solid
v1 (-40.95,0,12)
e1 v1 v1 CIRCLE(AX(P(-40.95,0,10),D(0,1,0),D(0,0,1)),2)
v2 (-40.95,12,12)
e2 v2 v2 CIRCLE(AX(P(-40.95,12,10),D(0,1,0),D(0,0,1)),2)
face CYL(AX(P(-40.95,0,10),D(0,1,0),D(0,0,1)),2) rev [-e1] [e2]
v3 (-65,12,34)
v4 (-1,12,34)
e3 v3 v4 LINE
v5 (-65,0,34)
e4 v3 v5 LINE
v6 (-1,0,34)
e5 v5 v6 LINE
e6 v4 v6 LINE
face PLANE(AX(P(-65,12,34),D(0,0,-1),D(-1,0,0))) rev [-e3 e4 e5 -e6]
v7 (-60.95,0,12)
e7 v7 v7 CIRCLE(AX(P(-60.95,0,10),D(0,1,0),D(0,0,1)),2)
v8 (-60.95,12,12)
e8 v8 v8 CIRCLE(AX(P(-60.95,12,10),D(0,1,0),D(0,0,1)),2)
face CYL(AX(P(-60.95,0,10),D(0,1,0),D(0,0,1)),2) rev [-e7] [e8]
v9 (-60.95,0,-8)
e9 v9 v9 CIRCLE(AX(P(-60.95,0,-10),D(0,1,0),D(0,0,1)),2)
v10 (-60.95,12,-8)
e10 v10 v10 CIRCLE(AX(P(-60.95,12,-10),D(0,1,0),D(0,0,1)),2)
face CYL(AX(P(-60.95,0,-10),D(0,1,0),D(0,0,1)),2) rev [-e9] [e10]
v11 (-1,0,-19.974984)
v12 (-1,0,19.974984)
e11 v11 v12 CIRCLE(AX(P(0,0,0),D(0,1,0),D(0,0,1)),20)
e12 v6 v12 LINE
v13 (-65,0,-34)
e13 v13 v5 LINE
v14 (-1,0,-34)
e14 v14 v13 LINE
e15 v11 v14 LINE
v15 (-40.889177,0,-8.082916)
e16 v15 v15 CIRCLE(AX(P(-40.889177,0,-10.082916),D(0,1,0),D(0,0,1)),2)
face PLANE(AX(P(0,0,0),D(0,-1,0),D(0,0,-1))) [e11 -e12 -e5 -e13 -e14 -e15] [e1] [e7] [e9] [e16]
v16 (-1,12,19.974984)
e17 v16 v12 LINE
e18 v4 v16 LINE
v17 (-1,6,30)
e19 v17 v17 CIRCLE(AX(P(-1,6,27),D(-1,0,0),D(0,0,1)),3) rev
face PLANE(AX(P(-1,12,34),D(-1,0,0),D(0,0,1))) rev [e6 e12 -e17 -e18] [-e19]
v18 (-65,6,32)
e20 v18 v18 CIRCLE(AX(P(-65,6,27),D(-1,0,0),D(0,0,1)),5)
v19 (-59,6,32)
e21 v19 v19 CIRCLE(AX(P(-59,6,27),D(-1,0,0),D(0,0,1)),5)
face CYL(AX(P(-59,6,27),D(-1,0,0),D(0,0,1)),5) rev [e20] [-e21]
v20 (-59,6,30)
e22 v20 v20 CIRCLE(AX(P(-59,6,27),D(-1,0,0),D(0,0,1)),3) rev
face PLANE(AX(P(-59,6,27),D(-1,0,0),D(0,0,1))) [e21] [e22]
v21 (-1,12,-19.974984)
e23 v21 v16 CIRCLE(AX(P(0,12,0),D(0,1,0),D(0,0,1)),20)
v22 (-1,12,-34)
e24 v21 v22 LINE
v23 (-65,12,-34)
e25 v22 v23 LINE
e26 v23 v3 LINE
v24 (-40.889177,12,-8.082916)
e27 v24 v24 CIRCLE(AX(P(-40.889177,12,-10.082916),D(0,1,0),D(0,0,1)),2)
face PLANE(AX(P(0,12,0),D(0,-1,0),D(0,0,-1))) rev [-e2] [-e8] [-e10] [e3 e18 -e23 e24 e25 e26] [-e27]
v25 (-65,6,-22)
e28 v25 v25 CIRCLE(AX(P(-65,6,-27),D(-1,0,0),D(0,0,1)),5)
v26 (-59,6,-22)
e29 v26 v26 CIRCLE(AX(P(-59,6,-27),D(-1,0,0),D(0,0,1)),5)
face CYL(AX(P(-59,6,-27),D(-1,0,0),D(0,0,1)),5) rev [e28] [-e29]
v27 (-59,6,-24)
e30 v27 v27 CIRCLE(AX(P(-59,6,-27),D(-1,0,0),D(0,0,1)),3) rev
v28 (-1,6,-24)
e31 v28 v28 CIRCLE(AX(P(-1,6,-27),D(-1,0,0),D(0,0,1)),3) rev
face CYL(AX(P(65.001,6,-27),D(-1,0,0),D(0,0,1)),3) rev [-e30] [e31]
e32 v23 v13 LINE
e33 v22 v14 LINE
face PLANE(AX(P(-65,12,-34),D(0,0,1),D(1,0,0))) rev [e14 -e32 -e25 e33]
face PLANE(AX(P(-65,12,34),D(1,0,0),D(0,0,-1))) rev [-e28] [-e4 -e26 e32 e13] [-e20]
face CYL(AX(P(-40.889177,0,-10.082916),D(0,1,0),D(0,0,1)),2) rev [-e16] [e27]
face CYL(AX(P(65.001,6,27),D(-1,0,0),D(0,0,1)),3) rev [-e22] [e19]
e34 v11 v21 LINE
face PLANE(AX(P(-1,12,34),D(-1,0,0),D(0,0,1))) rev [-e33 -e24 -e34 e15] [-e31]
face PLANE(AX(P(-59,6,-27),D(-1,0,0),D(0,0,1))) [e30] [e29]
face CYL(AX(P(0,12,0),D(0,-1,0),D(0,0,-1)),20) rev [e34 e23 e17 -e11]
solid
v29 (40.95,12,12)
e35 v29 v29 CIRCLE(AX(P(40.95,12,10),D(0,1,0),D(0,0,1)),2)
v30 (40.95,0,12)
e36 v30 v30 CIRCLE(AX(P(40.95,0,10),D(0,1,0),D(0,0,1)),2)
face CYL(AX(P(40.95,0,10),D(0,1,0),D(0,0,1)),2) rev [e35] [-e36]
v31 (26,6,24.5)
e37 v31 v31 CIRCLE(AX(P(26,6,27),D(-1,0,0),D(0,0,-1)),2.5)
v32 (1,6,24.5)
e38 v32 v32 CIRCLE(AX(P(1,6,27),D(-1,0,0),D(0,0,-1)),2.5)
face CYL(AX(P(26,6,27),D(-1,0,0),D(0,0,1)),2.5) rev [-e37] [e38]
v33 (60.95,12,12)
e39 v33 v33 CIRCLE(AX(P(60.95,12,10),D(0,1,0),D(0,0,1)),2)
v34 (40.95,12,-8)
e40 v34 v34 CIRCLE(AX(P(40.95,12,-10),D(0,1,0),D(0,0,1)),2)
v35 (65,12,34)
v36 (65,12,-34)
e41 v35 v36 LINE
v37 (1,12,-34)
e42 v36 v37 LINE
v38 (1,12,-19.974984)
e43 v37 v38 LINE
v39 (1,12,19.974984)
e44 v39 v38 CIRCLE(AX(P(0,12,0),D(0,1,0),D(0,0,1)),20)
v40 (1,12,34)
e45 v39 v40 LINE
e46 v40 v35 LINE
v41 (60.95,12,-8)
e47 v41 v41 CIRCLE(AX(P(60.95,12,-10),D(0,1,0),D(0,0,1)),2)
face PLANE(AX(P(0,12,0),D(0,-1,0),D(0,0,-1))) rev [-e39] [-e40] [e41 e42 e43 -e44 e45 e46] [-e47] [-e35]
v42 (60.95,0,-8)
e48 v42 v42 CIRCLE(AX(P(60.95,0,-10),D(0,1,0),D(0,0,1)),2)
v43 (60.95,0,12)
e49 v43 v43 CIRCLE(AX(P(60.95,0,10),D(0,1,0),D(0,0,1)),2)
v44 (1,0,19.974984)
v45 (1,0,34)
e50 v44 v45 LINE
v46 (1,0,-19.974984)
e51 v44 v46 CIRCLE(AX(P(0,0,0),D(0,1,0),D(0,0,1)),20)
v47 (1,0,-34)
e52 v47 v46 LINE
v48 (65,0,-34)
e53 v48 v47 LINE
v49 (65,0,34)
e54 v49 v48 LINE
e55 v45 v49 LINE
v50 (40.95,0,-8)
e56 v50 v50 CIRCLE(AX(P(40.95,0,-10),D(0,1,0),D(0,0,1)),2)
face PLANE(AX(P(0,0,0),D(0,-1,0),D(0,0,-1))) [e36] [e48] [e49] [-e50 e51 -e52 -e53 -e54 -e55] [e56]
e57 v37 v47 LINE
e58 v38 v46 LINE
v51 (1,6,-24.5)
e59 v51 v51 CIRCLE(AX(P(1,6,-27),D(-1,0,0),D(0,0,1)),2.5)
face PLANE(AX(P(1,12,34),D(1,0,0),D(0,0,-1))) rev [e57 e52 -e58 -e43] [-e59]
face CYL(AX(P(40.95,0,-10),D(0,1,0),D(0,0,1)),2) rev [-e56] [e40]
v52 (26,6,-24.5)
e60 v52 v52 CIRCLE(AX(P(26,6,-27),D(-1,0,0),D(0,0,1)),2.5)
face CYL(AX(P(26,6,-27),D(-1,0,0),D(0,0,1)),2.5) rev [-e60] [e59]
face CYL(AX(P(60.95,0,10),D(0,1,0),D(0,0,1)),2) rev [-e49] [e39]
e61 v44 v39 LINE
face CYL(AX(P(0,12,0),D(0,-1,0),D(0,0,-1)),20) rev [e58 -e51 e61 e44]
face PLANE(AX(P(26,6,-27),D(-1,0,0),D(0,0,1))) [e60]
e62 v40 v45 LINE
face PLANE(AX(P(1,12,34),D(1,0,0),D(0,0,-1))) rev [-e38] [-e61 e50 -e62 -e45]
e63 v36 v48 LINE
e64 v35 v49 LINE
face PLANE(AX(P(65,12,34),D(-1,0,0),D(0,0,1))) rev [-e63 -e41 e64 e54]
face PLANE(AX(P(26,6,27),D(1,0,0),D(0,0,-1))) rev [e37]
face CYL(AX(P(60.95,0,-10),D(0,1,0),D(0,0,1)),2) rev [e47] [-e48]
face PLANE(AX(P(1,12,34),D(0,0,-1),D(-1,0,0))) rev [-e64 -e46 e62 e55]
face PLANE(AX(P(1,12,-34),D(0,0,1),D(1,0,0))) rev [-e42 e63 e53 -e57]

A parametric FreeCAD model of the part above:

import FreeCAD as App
import Part
import Sketcher


def add_polygon(sketch, points):
    """Adds a closed chain of lines whose ends are joined by coincident constraints."""
    first, n = sketch.GeometryCount, len(points)
    for a, b in zip(points, points[1:] + points[:1]):
        sketch.addGeometry(Part.LineSegment(App.Vector(*a, 0), App.Vector(*b, 0)), False)
    for i in range(n):
        sketch.addConstraint(Sketcher.Constraint("Coincident", first + i, 2, first + (i + 1) % n, 1))

doc = App.newDocument("Part")
params = doc.addObject("Spreadsheet::Sheet", "Params")
for row, (alias, value) in enumerate([
    ("sketch1_width", "64 mm"),
    ("sketch1_height", "68 mm"),
    ("pad1_length", "12 mm"),
    ("sketch2_width", "64 mm"),
    ("sketch2_height", "68 mm"),
    ("pad2_length", "12 mm"),
    ("sketch3_diameter", "40 mm"),
    ("pad3_length", "75.330344 mm"),
    ("sketch4_diameter", "4 mm"),
    ("sketch5_diameter", "5 mm"),
    ("pocket2_length", "25 mm"),
    ("sketch6_diameter", "4 mm"),
    ("sketch7_diameter", "6 mm"),
    ("pocket4_length", "64 mm"),
    ("sketch8_diameter", "10 mm"),
    ("pocket5_length", "6 mm"),
], start=1):
    params.set(f"A{row}", alias)
    params.set(f"B{row}", "=" + value)
    params.setAlias(f"B{row}", alias)

body = doc.addObject("PartDesign::Body", "Body")

# Sketch on XZ plane
sketch1 = doc.addObject("Sketcher::SketchObject", "Sketch")
body.addObject(sketch1)
sketch1.AttachmentSupport = (doc.XZ_Plane, [""])
sketch1.MapMode = "FlatFace"
add_polygon(sketch1, [(1, -34), (1, 34), (65, 34), (65, -34)])  # lines 0-3
sketch1.addConstraint(Sketcher.Constraint("Vertical", 0))
sketch1.addConstraint(Sketcher.Constraint("Horizontal", 1))
sketch1.addConstraint(Sketcher.Constraint("Vertical", 2))
sketch1.addConstraint(Sketcher.Constraint("Horizontal", 3))
sketch1.addConstraint(Sketcher.Constraint("DistanceX", 1, 1, 1, 2, 64.0))
sketch1.addConstraint(Sketcher.Constraint("DistanceY", 0, 1, 0, 2, 68.0))
sketch1.addConstraint(Sketcher.Constraint("DistanceX", -1, 1, 0, 2, 1.0))
sketch1.addConstraint(Sketcher.Constraint("DistanceY", -1, 1, 0, 2, 34.0))
sketch1.setExpression("Constraints[8]", "Params.sketch1_width")
sketch1.setExpression("Constraints[9]", "Params.sketch1_height")
pad1 = doc.addObject("PartDesign::Pad", "Pad")
body.addObject(pad1)
pad1.Profile = sketch1
pad1.setExpression("Length", "Params.pad1_length")
pad1.Reversed = True
body2 = doc.addObject("PartDesign::Body", "Body001")

# Sketch on XZ plane
sketch2 = doc.addObject("Sketcher::SketchObject", "Sketch001")
body2.addObject(sketch2)
sketch2.AttachmentSupport = (doc.getObject("XZ_Plane001"), [""])
sketch2.MapMode = "FlatFace"
add_polygon(sketch2, [(-65, -34), (-65, 34), (-1, 34), (-1, -34)])  # lines 0-3
sketch2.addConstraint(Sketcher.Constraint("Vertical", 0))
sketch2.addConstraint(Sketcher.Constraint("Horizontal", 1))
sketch2.addConstraint(Sketcher.Constraint("Vertical", 2))
sketch2.addConstraint(Sketcher.Constraint("Horizontal", 3))
sketch2.addConstraint(Sketcher.Constraint("DistanceX", 1, 1, 1, 2, 64.0))
sketch2.addConstraint(Sketcher.Constraint("DistanceY", 0, 1, 0, 2, 68.0))
sketch2.addConstraint(Sketcher.Constraint("DistanceX", 0, 2, -1, 1, 65.0))
sketch2.addConstraint(Sketcher.Constraint("DistanceY", -1, 1, 0, 2, 34.0))
sketch2.setExpression("Constraints[8]", "Params.sketch2_width")
sketch2.setExpression("Constraints[9]", "Params.sketch2_height")
pad2 = doc.addObject("PartDesign::Pad", "Pad001")
body2.addObject(pad2)
pad2.Profile = sketch2
pad2.setExpression("Length", "Params.pad2_length")
pad2.Reversed = True
body3 = doc.addObject("PartDesign::Body", "Body002")

# Sketch on XZ plane
sketch3 = doc.addObject("Sketcher::SketchObject", "Sketch002")
body3.addObject(sketch3)
sketch3.AttachmentSupport = (doc.getObject("XZ_Plane002"), [""])
sketch3.MapMode = "FlatFace"
sketch3.addGeometry(Part.Circle(App.Vector(0, 0, 0), App.Vector(0, 0, 1), 20), False)
sketch3.addConstraint(Sketcher.Constraint("Coincident", 0, 3, -1, 1))
sketch3.addConstraint(Sketcher.Constraint("Diameter", 0, 40.0))
sketch3.setExpression("Constraints[1]", "Params.sketch3_diameter")
pad3 = doc.addObject("PartDesign::Pad", "Pad002")
body3.addObject(pad3)
pad3.Profile = sketch3
pad3.setExpression("Length", "Params.pad3_length")
pad3.Reversed = True
doc.recompute()

body4 = doc.addObject("PartDesign::Body", "Body003")
body4.BaseFeature = body3
boolean = doc.addObject("PartDesign::Boolean", "Boolean")
body.addObject(boolean)
boolean.Type = "Cut"
boolean.addObjects([body4])
doc.recompute()

# Sketch on XZ plane
sketch4 = doc.addObject("Sketcher::SketchObject", "Sketch003")
body.addObject(sketch4)
sketch4.AttachmentSupport = (doc.XZ_Plane, [""])
sketch4.MapMode = "FlatFace"
sketch4.AttachmentOffset = App.Placement(App.Vector(0, 0, -12), App.Rotation())
sketch4.addGeometry(Part.Circle(App.Vector(41, -10, 0), App.Vector(0, 0, 1), 2), False)
sketch4.addGeometry(Part.Circle(App.Vector(61, -10, 0), App.Vector(0, 0, 1), 2), False)
sketch4.addGeometry(Part.Circle(App.Vector(61, 10, 0), App.Vector(0, 0, 1), 2), False)
sketch4.addGeometry(Part.Circle(App.Vector(41, 10, 0), App.Vector(0, 0, 1), 2), False)
sketch4.addConstraint(Sketcher.Constraint("Equal", 0, 1))
sketch4.addConstraint(Sketcher.Constraint("Equal", 1, 2))
sketch4.addConstraint(Sketcher.Constraint("Equal", 2, 3))
sketch4.addConstraint(Sketcher.Constraint("Symmetric", 1, 3, 2, 3, -1))
sketch4.addConstraint(Sketcher.Constraint("Symmetric", 0, 3, 3, 3, -1))
sketch4.addConstraint(Sketcher.Constraint("Horizontal", 0, 3, 1, 3))
sketch4.addConstraint(Sketcher.Constraint("Diameter", 0, 4.0))
sketch4.addConstraint(Sketcher.Constraint("DistanceY", 0, 3, -1, 1, 10.0))
sketch4.addConstraint(Sketcher.Constraint("DistanceX", 0, 3, 1, 3, 20.0))
sketch4.addConstraint(Sketcher.Constraint("DistanceX", -1, 1, 0, 3, 40.95))
sketch4.setExpression("Constraints[6]", "Params.sketch4_diameter")
pocket1 = doc.addObject("PartDesign::Pocket", "Pocket")
body.addObject(pocket1)
pocket1.Profile = sketch4
pocket1.Type = "ThroughAll"
pocket1.Reversed = True

# Sketch on YZ plane
sketch5 = doc.addObject("Sketcher::SketchObject", "Sketch004")
body.addObject(sketch5)
sketch5.AttachmentSupport = (doc.YZ_Plane, [""])
sketch5.MapMode = "FlatFace"
sketch5.AttachmentOffset = App.Placement(App.Vector(0, 0, 1), App.Rotation())
sketch5.addGeometry(Part.Circle(App.Vector(6, -27, 0), App.Vector(0, 0, 1), 2.5), False)
sketch5.addGeometry(Part.Circle(App.Vector(6, 27, 0), App.Vector(0, 0, 1), 2.5), False)
sketch5.addConstraint(Sketcher.Constraint("Equal", 0, 1))
sketch5.addConstraint(Sketcher.Constraint("Symmetric", 0, 3, 1, 3, -1))
sketch5.addConstraint(Sketcher.Constraint("Diameter", 0, 5.0))
sketch5.addConstraint(Sketcher.Constraint("DistanceX", -1, 1, 0, 3, 6.0))
sketch5.addConstraint(Sketcher.Constraint("DistanceY", 0, 3, -1, 1, 27.0))
sketch5.setExpression("Constraints[2]", "Params.sketch5_diameter")
pocket2 = doc.addObject("PartDesign::Pocket", "Pocket001")
body.addObject(pocket2)
pocket2.Profile = sketch5
pocket2.setExpression("Length", "Params.pocket2_length")
pocket2.Reversed = True
doc.recompute()

boolean2 = doc.addObject("PartDesign::Boolean", "Boolean001")
body2.addObject(boolean2)
boolean2.Type = "Cut"
boolean2.addObjects([body3])

# Sketch on XZ plane
sketch6 = doc.addObject("Sketcher::SketchObject", "Sketch005")
body2.addObject(sketch6)
sketch6.AttachmentSupport = (doc.getObject("XZ_Plane001"), [""])
sketch6.MapMode = "FlatFace"
sketch6.AttachmentOffset = App.Placement(App.Vector(0, 0, -12), App.Rotation())
sketch6.addGeometry(Part.Circle(App.Vector(-61, -10, 0), App.Vector(0, 0, 1), 2), False)
sketch6.addGeometry(Part.Circle(App.Vector(-40.9, -10.1, 0), App.Vector(0, 0, 1), 2), False)
sketch6.addGeometry(Part.Circle(App.Vector(-41, 10, 0), App.Vector(0, 0, 1), 2), False)
sketch6.addGeometry(Part.Circle(App.Vector(-61, 10, 0), App.Vector(0, 0, 1), 2), False)
sketch6.addConstraint(Sketcher.Constraint("Equal", 0, 1))
sketch6.addConstraint(Sketcher.Constraint("Equal", 1, 2))
sketch6.addConstraint(Sketcher.Constraint("Equal", 2, 3))
sketch6.addConstraint(Sketcher.Constraint("Symmetric", 0, 3, 3, 3, -1))
sketch6.addConstraint(Sketcher.Constraint("Horizontal", 2, 3, 3, 3))
sketch6.addConstraint(Sketcher.Constraint("Diameter", 0, 4.0))
sketch6.addConstraint(Sketcher.Constraint("DistanceY", 0, 3, -1, 1, 10.0))
sketch6.addConstraint(Sketcher.Constraint("DistanceX", 0, 3, 2, 3, 20.0))
sketch6.addConstraint(Sketcher.Constraint("DistanceX", 0, 3, -1, 1, 60.95))
sketch6.addConstraint(Sketcher.Constraint("DistanceX", 1, 3, -1, 1, 40.889177))
sketch6.addConstraint(Sketcher.Constraint("DistanceY", 1, 3, -1, 1, 10.082916))
sketch6.setExpression("Constraints[5]", "Params.sketch6_diameter")
pocket3 = doc.addObject("PartDesign::Pocket", "Pocket002")
body2.addObject(pocket3)
pocket3.Profile = sketch6
pocket3.Type = "ThroughAll"
pocket3.Reversed = True

# Sketch on YZ plane
sketch7 = doc.addObject("Sketcher::SketchObject", "Sketch006")
body2.addObject(sketch7)
sketch7.AttachmentSupport = (doc.getObject("YZ_Plane001"), [""])
sketch7.MapMode = "FlatFace"
sketch7.AttachmentOffset = App.Placement(App.Vector(0, 0, -65), App.Rotation())
sketch7.addGeometry(Part.Circle(App.Vector(6, -27, 0), App.Vector(0, 0, 1), 3), False)
sketch7.addGeometry(Part.Circle(App.Vector(6, 27, 0), App.Vector(0, 0, 1), 3), False)
sketch7.addConstraint(Sketcher.Constraint("Equal", 0, 1))
sketch7.addConstraint(Sketcher.Constraint("Symmetric", 0, 3, 1, 3, -1))
sketch7.addConstraint(Sketcher.Constraint("Diameter", 0, 6.0))
sketch7.addConstraint(Sketcher.Constraint("DistanceX", -1, 1, 0, 3, 6.0))
sketch7.addConstraint(Sketcher.Constraint("DistanceY", 0, 3, -1, 1, 27.0))
sketch7.setExpression("Constraints[2]", "Params.sketch7_diameter")
pocket4 = doc.addObject("PartDesign::Pocket", "Pocket003")
body2.addObject(pocket4)
pocket4.Profile = sketch7
pocket4.setExpression("Length", "Params.pocket4_length")
pocket4.Reversed = True

# Sketch on YZ plane
sketch8 = doc.addObject("Sketcher::SketchObject", "Sketch007")
body2.addObject(sketch8)
sketch8.AttachmentSupport = (doc.getObject("YZ_Plane001"), [""])
sketch8.MapMode = "FlatFace"
sketch8.AttachmentOffset = App.Placement(App.Vector(0, 0, -65), App.Rotation())
sketch8.addGeometry(Part.Circle(App.Vector(6, -27, 0), App.Vector(0, 0, 1), 5), False)
sketch8.addGeometry(Part.Circle(App.Vector(6, 27, 0), App.Vector(0, 0, 1), 5), False)
sketch8.addConstraint(Sketcher.Constraint("Equal", 0, 1))
sketch8.addConstraint(Sketcher.Constraint("Symmetric", 0, 3, 1, 3, -1))
sketch8.addConstraint(Sketcher.Constraint("Diameter", 0, 10.0))
sketch8.addConstraint(Sketcher.Constraint("DistanceX", -1, 1, 0, 3, 6.0))
sketch8.addConstraint(Sketcher.Constraint("DistanceY", 0, 3, -1, 1, 27.0))
sketch8.setExpression("Constraints[2]", "Params.sketch8_diameter")
pocket5 = doc.addObject("PartDesign::Pocket", "Pocket004")
body2.addObject(pocket5)
pocket5.Profile = sketch8
pocket5.setExpression("Length", "Params.pocket5_length")
pocket5.Reversed = True

doc.recompute()
